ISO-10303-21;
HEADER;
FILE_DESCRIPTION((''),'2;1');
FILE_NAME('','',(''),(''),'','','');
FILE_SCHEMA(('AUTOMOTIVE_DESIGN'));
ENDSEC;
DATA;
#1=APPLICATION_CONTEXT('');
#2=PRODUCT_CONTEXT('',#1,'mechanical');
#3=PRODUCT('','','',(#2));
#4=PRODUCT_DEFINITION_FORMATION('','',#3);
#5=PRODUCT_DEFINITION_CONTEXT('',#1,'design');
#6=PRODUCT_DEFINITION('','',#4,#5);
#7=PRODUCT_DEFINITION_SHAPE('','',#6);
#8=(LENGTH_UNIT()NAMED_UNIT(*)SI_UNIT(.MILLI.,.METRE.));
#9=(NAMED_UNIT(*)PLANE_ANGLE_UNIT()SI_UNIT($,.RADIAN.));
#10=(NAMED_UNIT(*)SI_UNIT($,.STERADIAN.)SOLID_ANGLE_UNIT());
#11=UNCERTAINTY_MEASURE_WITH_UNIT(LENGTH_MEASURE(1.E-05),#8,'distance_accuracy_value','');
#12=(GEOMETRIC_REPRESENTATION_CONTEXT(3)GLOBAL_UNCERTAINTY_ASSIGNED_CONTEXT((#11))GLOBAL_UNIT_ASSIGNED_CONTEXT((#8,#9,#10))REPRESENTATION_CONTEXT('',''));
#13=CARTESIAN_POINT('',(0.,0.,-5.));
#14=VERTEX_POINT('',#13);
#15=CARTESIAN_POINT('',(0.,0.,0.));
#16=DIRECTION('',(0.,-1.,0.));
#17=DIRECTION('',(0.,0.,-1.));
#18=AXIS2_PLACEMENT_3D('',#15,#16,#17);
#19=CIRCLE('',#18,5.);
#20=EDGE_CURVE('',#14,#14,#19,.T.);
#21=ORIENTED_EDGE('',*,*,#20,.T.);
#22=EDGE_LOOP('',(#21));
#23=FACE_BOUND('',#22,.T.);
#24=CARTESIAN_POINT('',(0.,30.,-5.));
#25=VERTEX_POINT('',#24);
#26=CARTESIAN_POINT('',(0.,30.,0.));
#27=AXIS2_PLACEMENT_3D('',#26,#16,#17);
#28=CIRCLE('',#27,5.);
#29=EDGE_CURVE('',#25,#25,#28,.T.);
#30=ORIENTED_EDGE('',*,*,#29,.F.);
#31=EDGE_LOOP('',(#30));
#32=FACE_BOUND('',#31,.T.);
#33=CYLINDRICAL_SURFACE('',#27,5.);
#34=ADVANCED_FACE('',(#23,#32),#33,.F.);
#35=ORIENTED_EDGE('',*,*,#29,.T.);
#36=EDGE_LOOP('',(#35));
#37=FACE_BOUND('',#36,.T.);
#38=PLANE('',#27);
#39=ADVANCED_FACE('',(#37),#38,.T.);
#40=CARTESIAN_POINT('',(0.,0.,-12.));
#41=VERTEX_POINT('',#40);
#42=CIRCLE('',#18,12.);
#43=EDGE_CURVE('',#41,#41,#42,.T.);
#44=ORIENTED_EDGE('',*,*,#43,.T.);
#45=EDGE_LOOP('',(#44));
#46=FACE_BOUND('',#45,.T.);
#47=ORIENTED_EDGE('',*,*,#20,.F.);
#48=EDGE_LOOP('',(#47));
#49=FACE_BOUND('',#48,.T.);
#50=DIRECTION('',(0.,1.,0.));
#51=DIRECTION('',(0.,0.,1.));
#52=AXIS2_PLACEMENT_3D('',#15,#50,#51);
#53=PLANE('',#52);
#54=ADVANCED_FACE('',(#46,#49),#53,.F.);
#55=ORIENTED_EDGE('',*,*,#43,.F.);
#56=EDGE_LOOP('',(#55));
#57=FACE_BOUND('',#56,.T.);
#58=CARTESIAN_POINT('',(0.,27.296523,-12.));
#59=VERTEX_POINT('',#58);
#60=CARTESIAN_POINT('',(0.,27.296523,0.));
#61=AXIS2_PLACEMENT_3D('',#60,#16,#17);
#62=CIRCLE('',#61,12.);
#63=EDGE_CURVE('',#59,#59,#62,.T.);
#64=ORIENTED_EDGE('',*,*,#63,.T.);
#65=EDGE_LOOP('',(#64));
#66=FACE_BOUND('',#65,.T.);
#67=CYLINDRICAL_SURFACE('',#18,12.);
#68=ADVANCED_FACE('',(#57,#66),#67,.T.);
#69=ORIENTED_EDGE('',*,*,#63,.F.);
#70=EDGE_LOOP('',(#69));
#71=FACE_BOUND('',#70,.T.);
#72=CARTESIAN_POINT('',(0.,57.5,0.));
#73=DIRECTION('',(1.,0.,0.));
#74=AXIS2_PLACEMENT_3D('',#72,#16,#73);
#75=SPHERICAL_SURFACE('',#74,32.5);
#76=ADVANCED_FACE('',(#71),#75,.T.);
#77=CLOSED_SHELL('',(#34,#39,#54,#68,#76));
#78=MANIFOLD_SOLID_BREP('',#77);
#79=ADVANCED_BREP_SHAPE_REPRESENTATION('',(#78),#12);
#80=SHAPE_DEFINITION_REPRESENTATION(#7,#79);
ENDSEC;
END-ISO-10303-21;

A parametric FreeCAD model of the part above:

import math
import FreeCAD as App
import Part
import Sketcher

V = App.Vector
Q = App.Units.Quantity

doc = App.newDocument("Part")
body = doc.addObject("PartDesign::Body", "Body")

# Sketch on XY plane
sketch1 = doc.addObject("Sketcher::SketchObject", "Sketch")
body.addObject(sketch1)
sketch1.AttachmentSupport = (doc.XY_Plane, [""])
sketch1.MapMode = "FlatFace"
sketch1.addGeometry(Part.LineSegment(V(-12, 0, 0), V(0, 0, 0)), False)
sketch1.addGeometry(Part.LineSegment(V(0, 0, 0), V(0, 90, 0)), False)
sketch1.addGeometry(Part.ArcOfCircle(Part.Circle(V(0, 58, 0), V(0, 0, 1), 32), math.radians(90), math.radians(248)), False)
sketch1.addGeometry(Part.LineSegment(V(-12, 27, 0), V(-12, 0, 0)), False)
sketch1.addConstraint(Sketcher.Constraint("Coincident", 0, 2, 1, 1))
sketch1.addConstraint(Sketcher.Constraint("Coincident", 1, 2, 2, 1))
sketch1.addConstraint(Sketcher.Constraint("Coincident", 2, 2, 3, 1))
sketch1.addConstraint(Sketcher.Constraint("Coincident", 3, 2, 0, 1))
sketch1.addConstraint(Sketcher.Constraint("Horizontal", 0))
sketch1.addConstraint(Sketcher.Constraint("Vertical", 1))
sketch1.addConstraint(Sketcher.Constraint("Vertical", 3))
sketch1.addConstraint(Sketcher.Constraint("Coincident", 0, 2, -1, 1))
sketch1.addConstraint(Sketcher.Constraint("PointOnObject", 2, 3, -2))
sketch1.addConstraint(Sketcher.Constraint("Radius", 2, Q("32.5 mm")))
sketch1.addConstraint(Sketcher.Constraint("DistanceX", 0, 1, 0, 2, Q("12 mm")))
sketch1.addConstraint(Sketcher.Constraint("DistanceY", 1, 1, 1, 2, Q("90 mm")))
revolution = doc.addObject("PartDesign::Revolution", "Revolution")
body.addObject(revolution)
revolution.Profile = sketch1
revolution.ReferenceAxis = (sketch1, ["V_Axis"])
revolution.Angle = 360

# Sketch on XZ plane
sketch2 = doc.addObject("Sketcher::SketchObject", "Sketch001")
body.addObject(sketch2)
sketch2.AttachmentSupport = (doc.XZ_Plane, [""])
sketch2.MapMode = "FlatFace"
sketch2.addGeometry(Part.Circle(V(0, 0, 0), V(0, 0, 1), 5), False)
sketch2.addConstraint(Sketcher.Constraint("Coincident", 0, 3, -1, 1))
sketch2.addConstraint(Sketcher.Constraint("Diameter", 0, Q("10 mm")))
pocket1 = doc.addObject("PartDesign::Pocket", "Pocket")
body.addObject(pocket1)
pocket1.Profile = sketch2
pocket1.Length = 30

doc.recompute()
